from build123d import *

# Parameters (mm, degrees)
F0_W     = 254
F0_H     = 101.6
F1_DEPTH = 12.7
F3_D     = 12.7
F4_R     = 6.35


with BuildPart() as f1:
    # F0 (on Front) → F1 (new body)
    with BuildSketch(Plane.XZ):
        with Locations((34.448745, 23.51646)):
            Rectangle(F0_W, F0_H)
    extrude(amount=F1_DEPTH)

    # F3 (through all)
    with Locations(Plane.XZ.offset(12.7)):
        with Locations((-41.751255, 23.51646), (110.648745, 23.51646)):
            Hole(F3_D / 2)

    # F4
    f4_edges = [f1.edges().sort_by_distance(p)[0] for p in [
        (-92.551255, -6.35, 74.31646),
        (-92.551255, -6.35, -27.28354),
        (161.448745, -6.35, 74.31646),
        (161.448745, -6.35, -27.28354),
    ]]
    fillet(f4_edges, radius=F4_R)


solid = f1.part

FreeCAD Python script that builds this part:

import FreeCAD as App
import Part
import Sketcher
Q = App.Units.Quantity


def edges_at(feature, points):
    """Names of the edges that pass closest to the given points."""
    edges = feature.Shape.Edges
    near = lambda p: min(range(len(edges)), key=lambda i: edges[i].distToShape(Part.Vertex(*p))[0])
    return sorted({f"Edge{near(p) + 1}" for p in points})


def add_polygon(sketch, points):
    """Adds a closed chain of lines whose ends are joined by coincident constraints."""
    first, n = sketch.GeometryCount, len(points)
    for a, b in zip(points, points[1:] + points[:1]):
        sketch.addGeometry(Part.LineSegment(App.Vector(*a, 0), App.Vector(*b, 0)), False)
    for i in range(n):
        sketch.addConstraint(Sketcher.Constraint("Coincident", first + i, 2, first + (i + 1) % n, 1))

doc = App.newDocument("Part")
params = doc.addObject("Spreadsheet::Sheet", "Params")
for row, (alias, value) in enumerate([
    ("sketch1_width", "10 in"),
    ("sketch1_height", "4 in"),
    ("pad1_length", "0.5 in"),
    ("sketch2_diameter", "0.5 in"),
    ("hole_diameter", "0.5 in"),
    ("fillet_radius", "0.25 in"),
], start=1):
    params.set(f"A{row}", alias)
    params.set(f"B{row}", "=" + value)
    params.setAlias(f"B{row}", alias)

body = doc.addObject("PartDesign::Body", "Body")

# Sketch on XZ plane
sketch1 = body.newObject("Sketcher::SketchObject", "Sketch")
sketch1.AttachmentSupport = (doc.getObject("XZ_Plane"), [""])
sketch1.MapMode = "FlatFace"
add_polygon(sketch1, [(-93, 74), (-93, -27), (161, -27), (161, 74)])  # lines 0-3
sketch1.addConstraint([
    Sketcher.Constraint("Vertical", 0),
    Sketcher.Constraint("Horizontal", 1),
    Sketcher.Constraint("Vertical", 2),
    Sketcher.Constraint("Horizontal", 3),
    Sketcher.Constraint("DistanceX", 1, 1, 1, 2, Q("10 in")),
    Sketcher.Constraint("DistanceY", 0, 2, 0, 1, Q("4 in")),
    Sketcher.Constraint("DistanceY", 0, 2, -1, 1, 27.28354),
    Sketcher.Constraint("DistanceX", 0, 2, -1, 1, 92.551255),
])
sketch1.setExpression("Constraints[8]", "Params.sketch1_width")
sketch1.setExpression("Constraints[9]", "Params.sketch1_height")
pad1 = body.newObject("PartDesign::Pad", "Pad")
pad1.Profile = sketch1
pad1.setExpression("Length", "Params.pad1_length")

# Sketch on XZ plane
sketch2 = body.newObject("Sketcher::SketchObject", "Sketch001")
sketch2.AttachmentSupport = (doc.getObject("XZ_Plane"), [""])
sketch2.MapMode = "FlatFace"
sketch2.AttachmentOffset = App.Placement(App.Vector(0, 0, 0.5 * 25.4), App.Rotation())
sketch2.addGeometry([
    Part.Circle(App.Vector(-42, 24, 0), App.Vector(0, 0, 1), 6),
    Part.Circle(App.Vector(111, 24, 0), App.Vector(0, 0, 1), 6),
], False)
sketch2.addConstraint([
    Sketcher.Constraint("Equal", 0, 1),
    Sketcher.Constraint("Horizontal", 0, 3, 1, 3),
    Sketcher.Constraint("Diameter", 0, Q("0.5 in")),
    Sketcher.Constraint("DistanceX", 0, 3, 1, 3, Q("6 in")),
    Sketcher.Constraint("DistanceY", -1, 1, 0, 3, 23.51646),
    Sketcher.Constraint("DistanceX", 0, 3, -1, 1, 41.751255),
])
sketch2.setExpression("Constraints[2]", "Params.sketch2_diameter")
doc.recompute()
hole = body.newObject("PartDesign::Hole", "Hole")
hole.Profile = sketch2
hole.ThreadType = "None"
hole.setExpression("Diameter", "Params.hole_diameter")
hole.DepthType = "ThroughAll"
doc.recompute()

fillet = body.newObject("PartDesign::Fillet", "Fillet")
fillet.Base = (hole, edges_at(hole, [
    (-92.551, -6.35, 74.316),
    (-92.551, -6.35, -27.284),
    (161.449, -6.35, 74.316),
    (161.449, -6.35, -27.284),
]))
fillet.setExpression("Radius", "Params.fillet_radius")

doc.recompute()
